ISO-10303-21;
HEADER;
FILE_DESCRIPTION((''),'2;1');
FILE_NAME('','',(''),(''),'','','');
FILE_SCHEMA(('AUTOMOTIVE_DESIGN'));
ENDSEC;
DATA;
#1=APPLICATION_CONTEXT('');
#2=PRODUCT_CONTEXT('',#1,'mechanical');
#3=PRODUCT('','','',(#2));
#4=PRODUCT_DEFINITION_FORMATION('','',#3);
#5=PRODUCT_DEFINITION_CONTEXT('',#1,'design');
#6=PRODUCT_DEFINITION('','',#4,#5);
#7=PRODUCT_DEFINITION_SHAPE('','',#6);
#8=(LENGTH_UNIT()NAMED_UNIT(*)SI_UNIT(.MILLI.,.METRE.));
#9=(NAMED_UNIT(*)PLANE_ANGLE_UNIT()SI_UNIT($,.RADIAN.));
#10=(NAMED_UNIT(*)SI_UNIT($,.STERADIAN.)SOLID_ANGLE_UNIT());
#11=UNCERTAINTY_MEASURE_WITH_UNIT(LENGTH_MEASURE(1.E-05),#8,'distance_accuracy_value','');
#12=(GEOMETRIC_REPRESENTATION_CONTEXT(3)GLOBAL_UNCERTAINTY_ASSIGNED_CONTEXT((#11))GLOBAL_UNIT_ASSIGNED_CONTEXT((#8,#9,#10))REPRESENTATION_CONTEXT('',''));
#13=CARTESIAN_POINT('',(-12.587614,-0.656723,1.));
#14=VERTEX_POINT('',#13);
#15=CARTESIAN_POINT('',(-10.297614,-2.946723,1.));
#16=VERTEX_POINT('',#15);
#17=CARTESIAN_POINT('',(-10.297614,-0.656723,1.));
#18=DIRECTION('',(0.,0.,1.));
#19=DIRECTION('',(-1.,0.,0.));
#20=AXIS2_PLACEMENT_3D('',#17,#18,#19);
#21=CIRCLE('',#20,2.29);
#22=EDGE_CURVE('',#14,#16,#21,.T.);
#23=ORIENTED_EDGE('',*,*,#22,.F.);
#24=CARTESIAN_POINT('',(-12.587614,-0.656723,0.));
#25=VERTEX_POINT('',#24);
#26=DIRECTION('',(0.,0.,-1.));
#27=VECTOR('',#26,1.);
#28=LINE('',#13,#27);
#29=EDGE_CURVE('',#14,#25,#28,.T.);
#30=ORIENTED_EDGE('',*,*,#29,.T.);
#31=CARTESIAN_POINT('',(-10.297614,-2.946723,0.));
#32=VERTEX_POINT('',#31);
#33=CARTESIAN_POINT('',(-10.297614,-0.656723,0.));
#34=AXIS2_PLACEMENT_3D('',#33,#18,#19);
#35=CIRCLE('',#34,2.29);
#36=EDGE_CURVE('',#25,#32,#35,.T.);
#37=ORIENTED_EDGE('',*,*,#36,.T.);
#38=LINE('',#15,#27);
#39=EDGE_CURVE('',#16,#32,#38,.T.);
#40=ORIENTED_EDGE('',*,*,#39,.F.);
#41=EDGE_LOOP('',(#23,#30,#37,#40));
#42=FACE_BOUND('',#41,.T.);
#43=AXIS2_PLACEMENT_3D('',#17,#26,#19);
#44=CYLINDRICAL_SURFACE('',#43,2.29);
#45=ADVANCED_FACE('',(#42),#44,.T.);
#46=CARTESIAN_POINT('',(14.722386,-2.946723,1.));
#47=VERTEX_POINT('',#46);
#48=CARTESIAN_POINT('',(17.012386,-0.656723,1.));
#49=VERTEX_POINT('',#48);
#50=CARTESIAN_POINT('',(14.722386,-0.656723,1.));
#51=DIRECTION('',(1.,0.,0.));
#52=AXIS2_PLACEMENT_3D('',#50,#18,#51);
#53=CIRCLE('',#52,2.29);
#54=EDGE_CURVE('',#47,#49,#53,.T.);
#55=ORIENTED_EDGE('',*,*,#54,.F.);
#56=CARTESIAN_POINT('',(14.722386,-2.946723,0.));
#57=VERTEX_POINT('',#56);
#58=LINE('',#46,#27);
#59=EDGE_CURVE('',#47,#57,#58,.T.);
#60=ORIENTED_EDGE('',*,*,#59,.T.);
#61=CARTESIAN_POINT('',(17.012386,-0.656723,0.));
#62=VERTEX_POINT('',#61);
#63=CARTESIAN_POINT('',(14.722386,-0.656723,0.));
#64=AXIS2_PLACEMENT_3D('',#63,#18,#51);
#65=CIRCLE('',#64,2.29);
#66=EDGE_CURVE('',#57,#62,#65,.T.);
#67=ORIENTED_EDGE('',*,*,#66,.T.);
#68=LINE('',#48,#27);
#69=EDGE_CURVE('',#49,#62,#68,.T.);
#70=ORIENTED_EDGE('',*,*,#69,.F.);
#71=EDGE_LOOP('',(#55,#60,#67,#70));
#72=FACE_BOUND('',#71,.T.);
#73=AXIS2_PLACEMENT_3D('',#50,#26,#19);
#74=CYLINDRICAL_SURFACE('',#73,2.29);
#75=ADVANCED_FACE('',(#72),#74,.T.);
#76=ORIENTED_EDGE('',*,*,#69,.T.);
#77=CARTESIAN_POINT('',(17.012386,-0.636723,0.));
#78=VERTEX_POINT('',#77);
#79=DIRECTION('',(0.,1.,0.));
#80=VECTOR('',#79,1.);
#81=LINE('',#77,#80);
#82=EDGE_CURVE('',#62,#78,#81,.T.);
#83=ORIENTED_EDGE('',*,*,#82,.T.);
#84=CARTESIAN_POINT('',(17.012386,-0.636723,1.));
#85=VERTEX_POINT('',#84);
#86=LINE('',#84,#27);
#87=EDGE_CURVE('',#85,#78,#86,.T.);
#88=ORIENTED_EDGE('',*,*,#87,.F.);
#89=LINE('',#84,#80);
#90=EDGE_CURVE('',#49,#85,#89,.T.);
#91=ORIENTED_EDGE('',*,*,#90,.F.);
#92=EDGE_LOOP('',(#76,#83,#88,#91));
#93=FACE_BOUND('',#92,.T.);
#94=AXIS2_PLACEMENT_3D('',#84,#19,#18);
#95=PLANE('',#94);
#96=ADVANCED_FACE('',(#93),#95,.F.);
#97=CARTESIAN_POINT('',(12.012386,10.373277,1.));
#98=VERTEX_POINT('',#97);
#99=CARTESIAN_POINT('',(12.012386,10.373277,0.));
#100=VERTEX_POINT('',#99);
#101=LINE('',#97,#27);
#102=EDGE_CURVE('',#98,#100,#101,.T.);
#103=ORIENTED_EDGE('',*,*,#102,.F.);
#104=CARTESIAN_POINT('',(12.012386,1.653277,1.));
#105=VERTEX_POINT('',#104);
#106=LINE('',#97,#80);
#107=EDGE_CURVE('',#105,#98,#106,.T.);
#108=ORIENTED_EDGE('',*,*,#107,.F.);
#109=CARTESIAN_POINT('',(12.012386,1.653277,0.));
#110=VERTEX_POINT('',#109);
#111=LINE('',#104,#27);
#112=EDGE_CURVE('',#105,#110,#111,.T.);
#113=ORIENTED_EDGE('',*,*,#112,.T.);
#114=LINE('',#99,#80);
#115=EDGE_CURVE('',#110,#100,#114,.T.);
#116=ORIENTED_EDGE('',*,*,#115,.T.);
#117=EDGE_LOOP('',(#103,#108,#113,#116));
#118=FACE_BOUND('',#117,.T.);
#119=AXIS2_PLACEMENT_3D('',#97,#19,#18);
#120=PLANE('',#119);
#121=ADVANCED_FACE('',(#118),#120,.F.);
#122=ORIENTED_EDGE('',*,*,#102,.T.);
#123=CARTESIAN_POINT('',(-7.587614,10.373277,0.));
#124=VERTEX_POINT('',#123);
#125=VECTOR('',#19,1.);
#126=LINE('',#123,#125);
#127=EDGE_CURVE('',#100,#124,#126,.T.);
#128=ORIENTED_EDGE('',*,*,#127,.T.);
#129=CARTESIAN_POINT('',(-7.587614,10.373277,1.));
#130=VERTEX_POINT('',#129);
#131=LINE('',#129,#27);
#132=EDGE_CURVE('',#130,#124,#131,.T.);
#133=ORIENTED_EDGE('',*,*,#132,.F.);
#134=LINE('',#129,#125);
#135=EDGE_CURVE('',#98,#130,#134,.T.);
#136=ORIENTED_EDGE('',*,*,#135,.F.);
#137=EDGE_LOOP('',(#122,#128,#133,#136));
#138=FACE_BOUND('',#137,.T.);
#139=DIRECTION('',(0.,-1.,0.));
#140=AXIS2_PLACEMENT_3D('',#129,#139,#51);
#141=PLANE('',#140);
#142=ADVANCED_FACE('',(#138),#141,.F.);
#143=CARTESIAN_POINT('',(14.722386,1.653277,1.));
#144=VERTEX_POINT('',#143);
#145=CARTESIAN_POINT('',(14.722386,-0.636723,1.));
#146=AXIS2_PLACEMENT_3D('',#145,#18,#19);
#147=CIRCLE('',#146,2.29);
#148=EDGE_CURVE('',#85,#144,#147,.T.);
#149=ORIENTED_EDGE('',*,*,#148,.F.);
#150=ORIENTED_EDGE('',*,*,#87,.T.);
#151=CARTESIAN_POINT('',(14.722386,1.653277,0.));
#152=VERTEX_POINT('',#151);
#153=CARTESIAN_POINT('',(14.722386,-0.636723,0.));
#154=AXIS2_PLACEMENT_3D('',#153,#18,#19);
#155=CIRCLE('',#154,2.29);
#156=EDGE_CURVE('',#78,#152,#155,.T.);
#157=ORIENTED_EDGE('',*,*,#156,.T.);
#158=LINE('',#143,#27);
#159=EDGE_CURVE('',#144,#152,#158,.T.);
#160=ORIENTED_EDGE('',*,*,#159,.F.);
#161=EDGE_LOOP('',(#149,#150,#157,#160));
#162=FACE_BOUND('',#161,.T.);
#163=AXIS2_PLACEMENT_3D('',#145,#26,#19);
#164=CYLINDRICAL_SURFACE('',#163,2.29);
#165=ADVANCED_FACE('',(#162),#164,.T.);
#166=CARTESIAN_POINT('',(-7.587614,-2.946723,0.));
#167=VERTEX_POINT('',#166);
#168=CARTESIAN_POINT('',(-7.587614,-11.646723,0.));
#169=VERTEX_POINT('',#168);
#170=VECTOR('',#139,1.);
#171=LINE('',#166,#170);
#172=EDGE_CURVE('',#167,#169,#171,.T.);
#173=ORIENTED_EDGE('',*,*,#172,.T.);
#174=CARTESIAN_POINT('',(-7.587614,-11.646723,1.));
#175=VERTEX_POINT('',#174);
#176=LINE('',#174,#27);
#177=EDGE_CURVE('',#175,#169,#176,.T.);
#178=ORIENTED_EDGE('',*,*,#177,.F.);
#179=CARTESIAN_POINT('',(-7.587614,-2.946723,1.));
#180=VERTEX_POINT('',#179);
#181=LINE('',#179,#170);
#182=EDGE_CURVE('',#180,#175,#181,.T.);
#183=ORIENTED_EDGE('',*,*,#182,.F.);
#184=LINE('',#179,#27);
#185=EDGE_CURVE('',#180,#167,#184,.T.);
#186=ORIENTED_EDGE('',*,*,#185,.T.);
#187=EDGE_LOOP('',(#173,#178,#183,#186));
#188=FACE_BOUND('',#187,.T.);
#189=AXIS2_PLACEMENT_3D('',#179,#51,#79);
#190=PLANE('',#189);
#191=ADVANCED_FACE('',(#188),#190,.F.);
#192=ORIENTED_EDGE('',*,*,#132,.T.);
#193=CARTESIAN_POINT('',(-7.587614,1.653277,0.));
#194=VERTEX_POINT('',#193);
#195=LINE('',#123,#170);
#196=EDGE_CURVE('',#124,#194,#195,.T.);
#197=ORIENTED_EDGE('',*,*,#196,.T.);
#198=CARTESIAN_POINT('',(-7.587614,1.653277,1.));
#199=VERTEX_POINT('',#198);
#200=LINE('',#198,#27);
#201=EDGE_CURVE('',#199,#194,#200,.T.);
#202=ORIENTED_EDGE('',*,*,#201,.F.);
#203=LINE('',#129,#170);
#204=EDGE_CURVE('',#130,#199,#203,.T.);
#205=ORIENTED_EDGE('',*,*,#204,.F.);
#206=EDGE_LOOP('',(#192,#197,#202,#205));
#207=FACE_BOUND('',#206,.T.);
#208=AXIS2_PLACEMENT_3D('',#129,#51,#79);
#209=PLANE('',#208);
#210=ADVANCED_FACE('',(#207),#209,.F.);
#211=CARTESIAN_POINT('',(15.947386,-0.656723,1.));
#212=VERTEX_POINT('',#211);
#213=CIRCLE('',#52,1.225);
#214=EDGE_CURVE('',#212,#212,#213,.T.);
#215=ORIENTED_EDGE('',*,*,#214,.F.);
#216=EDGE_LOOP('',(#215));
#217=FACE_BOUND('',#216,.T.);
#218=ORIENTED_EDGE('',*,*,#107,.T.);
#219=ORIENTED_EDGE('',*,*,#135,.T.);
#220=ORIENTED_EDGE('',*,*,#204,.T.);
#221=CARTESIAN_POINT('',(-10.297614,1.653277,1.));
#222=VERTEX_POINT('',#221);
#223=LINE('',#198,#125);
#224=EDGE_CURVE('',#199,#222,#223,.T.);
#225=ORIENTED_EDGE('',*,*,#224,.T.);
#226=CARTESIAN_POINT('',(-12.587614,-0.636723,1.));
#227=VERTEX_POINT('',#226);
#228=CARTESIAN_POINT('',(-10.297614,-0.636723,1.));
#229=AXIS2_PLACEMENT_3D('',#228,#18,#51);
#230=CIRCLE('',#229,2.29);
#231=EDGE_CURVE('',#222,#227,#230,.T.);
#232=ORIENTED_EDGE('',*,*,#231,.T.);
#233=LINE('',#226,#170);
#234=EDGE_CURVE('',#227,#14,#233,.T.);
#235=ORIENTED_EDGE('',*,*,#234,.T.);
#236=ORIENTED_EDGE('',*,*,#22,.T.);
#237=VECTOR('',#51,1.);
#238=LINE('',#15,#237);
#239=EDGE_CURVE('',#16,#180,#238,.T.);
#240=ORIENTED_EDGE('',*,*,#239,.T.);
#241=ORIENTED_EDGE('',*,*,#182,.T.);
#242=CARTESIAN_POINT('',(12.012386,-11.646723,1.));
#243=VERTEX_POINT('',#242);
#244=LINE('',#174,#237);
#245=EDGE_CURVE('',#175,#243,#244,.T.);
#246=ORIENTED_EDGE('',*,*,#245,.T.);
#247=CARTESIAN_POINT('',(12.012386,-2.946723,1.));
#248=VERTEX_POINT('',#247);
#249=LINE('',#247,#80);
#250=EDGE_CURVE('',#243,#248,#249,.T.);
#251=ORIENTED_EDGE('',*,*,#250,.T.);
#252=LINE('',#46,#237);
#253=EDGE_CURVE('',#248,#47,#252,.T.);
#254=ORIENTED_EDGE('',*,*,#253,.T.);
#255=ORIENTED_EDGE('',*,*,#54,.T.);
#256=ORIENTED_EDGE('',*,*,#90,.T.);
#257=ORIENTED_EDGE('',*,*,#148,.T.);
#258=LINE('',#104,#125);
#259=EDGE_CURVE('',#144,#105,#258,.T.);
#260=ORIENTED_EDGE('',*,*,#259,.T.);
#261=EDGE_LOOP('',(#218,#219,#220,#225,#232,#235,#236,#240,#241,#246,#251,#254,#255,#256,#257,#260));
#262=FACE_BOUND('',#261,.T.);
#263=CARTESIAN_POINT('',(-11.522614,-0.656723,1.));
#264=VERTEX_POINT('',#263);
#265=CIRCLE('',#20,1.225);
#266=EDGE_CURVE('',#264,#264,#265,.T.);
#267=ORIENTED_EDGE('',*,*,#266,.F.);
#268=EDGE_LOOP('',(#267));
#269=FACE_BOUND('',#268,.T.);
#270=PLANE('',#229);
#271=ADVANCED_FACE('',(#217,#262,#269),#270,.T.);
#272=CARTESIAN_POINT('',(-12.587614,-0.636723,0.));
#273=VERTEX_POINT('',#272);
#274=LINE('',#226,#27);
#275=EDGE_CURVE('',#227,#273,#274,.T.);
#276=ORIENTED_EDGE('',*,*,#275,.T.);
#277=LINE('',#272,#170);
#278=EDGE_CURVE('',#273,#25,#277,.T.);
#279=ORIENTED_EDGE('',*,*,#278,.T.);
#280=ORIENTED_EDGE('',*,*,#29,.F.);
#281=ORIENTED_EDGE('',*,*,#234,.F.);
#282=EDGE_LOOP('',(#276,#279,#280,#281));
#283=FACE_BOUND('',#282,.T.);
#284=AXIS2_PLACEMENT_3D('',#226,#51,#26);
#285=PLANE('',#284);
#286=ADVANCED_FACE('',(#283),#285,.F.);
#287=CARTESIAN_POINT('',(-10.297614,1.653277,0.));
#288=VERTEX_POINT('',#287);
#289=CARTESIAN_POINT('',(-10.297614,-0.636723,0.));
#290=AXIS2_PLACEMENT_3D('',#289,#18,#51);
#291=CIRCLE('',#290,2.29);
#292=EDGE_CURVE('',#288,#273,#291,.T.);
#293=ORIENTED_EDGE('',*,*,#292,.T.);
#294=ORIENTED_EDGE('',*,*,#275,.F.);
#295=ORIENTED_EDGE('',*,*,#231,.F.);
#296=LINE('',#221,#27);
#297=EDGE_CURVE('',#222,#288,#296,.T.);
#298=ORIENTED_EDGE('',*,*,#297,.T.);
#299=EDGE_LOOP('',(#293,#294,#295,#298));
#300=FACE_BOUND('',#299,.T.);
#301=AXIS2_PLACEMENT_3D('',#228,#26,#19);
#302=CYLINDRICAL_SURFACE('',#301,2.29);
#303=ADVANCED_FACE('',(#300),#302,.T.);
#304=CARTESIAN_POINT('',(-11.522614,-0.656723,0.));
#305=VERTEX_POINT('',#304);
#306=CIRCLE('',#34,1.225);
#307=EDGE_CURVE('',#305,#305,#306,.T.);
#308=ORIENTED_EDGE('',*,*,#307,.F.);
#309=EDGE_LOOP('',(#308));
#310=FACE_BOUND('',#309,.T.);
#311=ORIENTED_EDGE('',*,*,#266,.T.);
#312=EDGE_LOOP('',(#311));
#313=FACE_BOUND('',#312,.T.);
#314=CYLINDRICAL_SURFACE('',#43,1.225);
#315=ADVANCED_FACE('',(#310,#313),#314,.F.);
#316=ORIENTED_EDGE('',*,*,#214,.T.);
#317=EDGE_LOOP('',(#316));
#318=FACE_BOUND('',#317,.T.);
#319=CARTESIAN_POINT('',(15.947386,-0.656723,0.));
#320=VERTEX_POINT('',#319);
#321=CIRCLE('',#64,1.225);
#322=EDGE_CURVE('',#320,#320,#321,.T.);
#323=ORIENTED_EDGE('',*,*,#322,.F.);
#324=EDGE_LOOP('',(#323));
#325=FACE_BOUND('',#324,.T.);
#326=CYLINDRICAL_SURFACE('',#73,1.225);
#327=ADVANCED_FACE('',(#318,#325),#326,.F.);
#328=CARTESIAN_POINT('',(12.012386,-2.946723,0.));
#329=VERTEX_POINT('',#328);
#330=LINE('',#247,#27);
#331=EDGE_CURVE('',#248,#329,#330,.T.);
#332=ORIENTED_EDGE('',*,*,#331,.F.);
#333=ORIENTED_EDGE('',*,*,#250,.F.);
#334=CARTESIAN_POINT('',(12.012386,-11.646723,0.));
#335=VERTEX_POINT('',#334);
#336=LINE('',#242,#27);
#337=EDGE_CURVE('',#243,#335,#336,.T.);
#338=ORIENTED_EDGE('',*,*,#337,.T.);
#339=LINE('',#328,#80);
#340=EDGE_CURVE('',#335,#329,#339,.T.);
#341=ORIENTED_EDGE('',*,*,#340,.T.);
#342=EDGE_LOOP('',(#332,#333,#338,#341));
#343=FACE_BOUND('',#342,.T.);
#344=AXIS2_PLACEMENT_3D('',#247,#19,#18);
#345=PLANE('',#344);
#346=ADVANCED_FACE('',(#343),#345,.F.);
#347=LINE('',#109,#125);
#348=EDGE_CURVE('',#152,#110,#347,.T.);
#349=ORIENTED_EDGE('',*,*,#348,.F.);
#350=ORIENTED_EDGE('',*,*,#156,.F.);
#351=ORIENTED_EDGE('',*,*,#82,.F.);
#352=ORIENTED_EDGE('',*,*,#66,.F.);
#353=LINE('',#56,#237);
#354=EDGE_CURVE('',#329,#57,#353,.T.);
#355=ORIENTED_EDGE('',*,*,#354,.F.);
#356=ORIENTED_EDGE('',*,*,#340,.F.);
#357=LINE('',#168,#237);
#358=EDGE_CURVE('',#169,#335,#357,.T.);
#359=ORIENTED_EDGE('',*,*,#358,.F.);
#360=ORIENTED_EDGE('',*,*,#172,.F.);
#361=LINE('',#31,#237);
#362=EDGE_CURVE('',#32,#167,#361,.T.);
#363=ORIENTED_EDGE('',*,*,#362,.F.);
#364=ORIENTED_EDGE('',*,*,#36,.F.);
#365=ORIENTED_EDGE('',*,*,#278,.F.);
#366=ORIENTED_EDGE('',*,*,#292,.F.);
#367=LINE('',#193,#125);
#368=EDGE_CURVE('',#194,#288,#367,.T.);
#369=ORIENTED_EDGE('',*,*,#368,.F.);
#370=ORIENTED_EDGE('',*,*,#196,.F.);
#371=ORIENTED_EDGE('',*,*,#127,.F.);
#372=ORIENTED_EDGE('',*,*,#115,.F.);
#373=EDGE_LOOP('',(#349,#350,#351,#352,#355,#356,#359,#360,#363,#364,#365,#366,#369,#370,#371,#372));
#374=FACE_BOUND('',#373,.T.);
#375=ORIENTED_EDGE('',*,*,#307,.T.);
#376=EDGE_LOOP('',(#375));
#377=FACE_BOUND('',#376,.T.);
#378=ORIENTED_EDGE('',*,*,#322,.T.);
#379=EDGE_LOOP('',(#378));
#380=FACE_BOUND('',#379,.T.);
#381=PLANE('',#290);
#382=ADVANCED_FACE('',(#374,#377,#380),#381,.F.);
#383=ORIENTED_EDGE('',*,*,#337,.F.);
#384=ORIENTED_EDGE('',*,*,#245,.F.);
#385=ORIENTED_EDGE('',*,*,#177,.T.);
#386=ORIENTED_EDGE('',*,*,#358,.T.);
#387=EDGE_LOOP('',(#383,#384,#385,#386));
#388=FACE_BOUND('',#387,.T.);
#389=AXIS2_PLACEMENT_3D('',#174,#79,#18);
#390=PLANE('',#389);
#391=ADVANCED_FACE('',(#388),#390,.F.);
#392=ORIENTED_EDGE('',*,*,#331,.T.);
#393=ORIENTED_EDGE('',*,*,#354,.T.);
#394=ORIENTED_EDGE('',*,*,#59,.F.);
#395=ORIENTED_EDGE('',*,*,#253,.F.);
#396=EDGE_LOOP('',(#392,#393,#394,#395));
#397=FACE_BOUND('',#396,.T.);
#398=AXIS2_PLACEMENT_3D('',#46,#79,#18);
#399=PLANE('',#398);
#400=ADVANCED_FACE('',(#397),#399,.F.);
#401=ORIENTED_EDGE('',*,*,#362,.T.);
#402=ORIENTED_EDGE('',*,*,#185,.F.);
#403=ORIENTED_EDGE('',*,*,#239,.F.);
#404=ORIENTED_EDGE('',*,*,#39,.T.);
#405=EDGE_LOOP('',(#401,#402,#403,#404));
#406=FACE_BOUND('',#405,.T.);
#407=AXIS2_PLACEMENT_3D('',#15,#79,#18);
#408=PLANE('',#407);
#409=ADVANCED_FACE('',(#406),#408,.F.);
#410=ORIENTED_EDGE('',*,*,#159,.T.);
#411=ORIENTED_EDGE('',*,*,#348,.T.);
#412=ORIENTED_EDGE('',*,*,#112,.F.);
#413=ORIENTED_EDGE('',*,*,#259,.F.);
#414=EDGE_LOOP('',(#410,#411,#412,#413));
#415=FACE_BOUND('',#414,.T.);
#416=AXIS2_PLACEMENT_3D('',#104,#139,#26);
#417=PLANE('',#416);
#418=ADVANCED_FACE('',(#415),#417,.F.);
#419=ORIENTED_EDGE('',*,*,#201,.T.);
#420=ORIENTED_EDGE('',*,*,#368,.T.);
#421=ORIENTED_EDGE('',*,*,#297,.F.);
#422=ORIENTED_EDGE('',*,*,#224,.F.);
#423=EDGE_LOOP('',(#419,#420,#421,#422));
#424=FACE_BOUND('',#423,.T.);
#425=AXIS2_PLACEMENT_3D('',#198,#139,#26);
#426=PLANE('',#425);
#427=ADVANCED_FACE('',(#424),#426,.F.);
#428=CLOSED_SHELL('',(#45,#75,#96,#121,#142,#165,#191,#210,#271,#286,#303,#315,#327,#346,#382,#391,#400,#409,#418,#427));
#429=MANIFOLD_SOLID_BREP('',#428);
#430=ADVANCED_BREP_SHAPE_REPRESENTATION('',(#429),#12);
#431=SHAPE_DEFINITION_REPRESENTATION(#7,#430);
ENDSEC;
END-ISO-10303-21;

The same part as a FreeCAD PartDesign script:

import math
import FreeCAD as App
import Part
import Sketcher

V = App.Vector

doc = App.newDocument("Part")
body = doc.addObject("PartDesign::Body", "Body")

# Sketch on XY plane
sketch1 = doc.addObject("Sketcher::SketchObject", "Sketch")
body.addObject(sketch1)
sketch1.AttachmentSupport = (doc.XY_Plane, [""])
sketch1.MapMode = "FlatFace"
sketch1.addGeometry([
    Part.LineSegment(V(12.012386, 10.373277, 0), V(-7.587614, 10.373277, 0)),  # 0
    Part.LineSegment(V(-7.587614, 10.373277, 0), V(-7.587614, 1.653277, 0)),  # 1
    Part.LineSegment(V(-7.587614, 1.653277, 0), V(-10.297614, 1.653277, 0)),  # 2
    Part.ArcOfCircle(Part.Circle(V(-10.297614, -0.636723, 0), V(0, 0, 1), 2.29), math.radians(90), math.radians(180)),  # 3
    Part.LineSegment(V(-12.587614, -0.636723, 0), V(-12.587614, -0.656723, 0)),  # 4
    Part.ArcOfCircle(Part.Circle(V(-10.297614, -0.656723, 0), V(0, 0, 1), 2.29), math.radians(-180), math.radians(-90)),  # 5
    Part.LineSegment(V(-10.297614, -2.946723, 0), V(-7.587614, -2.946723, 0)),  # 6
    Part.LineSegment(V(-7.587614, -2.946723, 0), V(-7.587614, -11.646723, 0)),  # 7
    Part.LineSegment(V(-7.587614, -11.646723, 0), V(12.012386, -11.646723, 0)),  # 8
    Part.LineSegment(V(12.012386, -11.646723, 0), V(12.012386, -2.946723, 0)),  # 9
    Part.LineSegment(V(12.012386, -2.946723, 0), V(14.722386, -2.946723, 0)),  # 10
    Part.ArcOfCircle(Part.Circle(V(14.722386, -0.656723, 0), V(0, 0, 1), 2.29), math.radians(-90), math.radians(0)),  # 11
    Part.LineSegment(V(17.012386, -0.656723, 0), V(17.012386, -0.636723, 0)),  # 12
    Part.ArcOfCircle(Part.Circle(V(14.722386, -0.636723, 0), V(0, 0, 1), 2.29), math.radians(0), math.radians(90)),  # 13
    Part.LineSegment(V(14.722386, 1.653277, 0), V(12.012386, 1.653277, 0)),  # 14
    Part.LineSegment(V(12.012386, 1.653277, 0), V(12.012386, 10.373277, 0)),  # 15
    Part.Circle(V(14.722386, -0.656723, 0), V(0, 0, 1), 1.225),  # 16
    Part.Circle(V(-10.297614, -0.656723, 0), V(0, 0, 1), 1.225),  # 17
], False)
sketch1.addConstraint([
    Sketcher.Constraint("Coincident", 0, 2, 1, 1),
    Sketcher.Constraint("Coincident", 1, 2, 2, 1),
    Sketcher.Constraint("Tangent", 2, 2, 3, 1),
    Sketcher.Constraint("Tangent", 3, 2, 4, 1),
    Sketcher.Constraint("Tangent", 4, 2, 5, 1),
    Sketcher.Constraint("Tangent", 5, 2, 6, 1),
    Sketcher.Constraint("Coincident", 6, 2, 7, 1),
    Sketcher.Constraint("Coincident", 7, 2, 8, 1),
    Sketcher.Constraint("Coincident", 8, 2, 9, 1),
    Sketcher.Constraint("Coincident", 9, 2, 10, 1),
    Sketcher.Constraint("Tangent", 10, 2, 11, 1),
    Sketcher.Constraint("Tangent", 11, 2, 12, 1),
    Sketcher.Constraint("Tangent", 12, 2, 13, 1),
    Sketcher.Constraint("Tangent", 13, 2, 14, 1),
    Sketcher.Constraint("Coincident", 14, 2, 15, 1),
    Sketcher.Constraint("Coincident", 15, 2, 0, 1),
    Sketcher.Constraint("Horizontal", 0),
    Sketcher.Constraint("Vertical", 1),
    Sketcher.Constraint("Horizontal", 2),
    Sketcher.Constraint("Vertical", 4),
    Sketcher.Constraint("Horizontal", 6),
    Sketcher.Constraint("Vertical", 7),
    Sketcher.Constraint("Horizontal", 8),
    Sketcher.Constraint("Vertical", 9),
    Sketcher.Constraint("Horizontal", 10),
    Sketcher.Constraint("Vertical", 12),
    Sketcher.Constraint("Horizontal", 14),
    Sketcher.Constraint("Vertical", 15),
    Sketcher.Constraint("Coincident", 16, 3, 11, 3),
    Sketcher.Constraint("Coincident", 17, 3, 5, 3),
    Sketcher.Constraint("Equal", 3, 5),
    Sketcher.Constraint("Equal", 5, 11),
    Sketcher.Constraint("Equal", 11, 13),
    Sketcher.Constraint("Equal", 16, 17),
    Sketcher.Constraint("Horizontal", 5, 3, 11, 3),
    Sketcher.Constraint("Horizontal", 3, 3, 13, 3),
    Sketcher.Constraint("Vertical", 1, 2, 6, 2),
    Sketcher.Constraint("Vertical", 9, 2, 14, 2),
    Sketcher.Constraint("Equal", 6, 10),
    Sketcher.Constraint("Diameter", 16, 2.45),
    Sketcher.Constraint("Radius", 3, 2.29),
    Sketcher.Constraint("DistanceX", 0, 2, 0, 1, 19.6),
    Sketcher.Constraint("DistanceY", 7, 2, 7, 1, 8.7),
    Sketcher.Constraint("DistanceX", 3, 2, 1, 2, 5.0),
    Sketcher.Constraint("DistanceY", 1, 2, 1, 1, 8.72),
    Sketcher.Constraint("DistanceY", 4, 2, 4, 1, 0.02),
    Sketcher.Constraint("DistanceX", 3, 3, -1, 1, 10.297614),
    Sketcher.Constraint("DistanceY", 3, 3, -1, 1, 0.636723),
])
pad1 = doc.addObject("PartDesign::Pad", "Pad")
body.addObject(pad1)
pad1.Profile = sketch1
pad1.Length = 1

doc.recompute()
